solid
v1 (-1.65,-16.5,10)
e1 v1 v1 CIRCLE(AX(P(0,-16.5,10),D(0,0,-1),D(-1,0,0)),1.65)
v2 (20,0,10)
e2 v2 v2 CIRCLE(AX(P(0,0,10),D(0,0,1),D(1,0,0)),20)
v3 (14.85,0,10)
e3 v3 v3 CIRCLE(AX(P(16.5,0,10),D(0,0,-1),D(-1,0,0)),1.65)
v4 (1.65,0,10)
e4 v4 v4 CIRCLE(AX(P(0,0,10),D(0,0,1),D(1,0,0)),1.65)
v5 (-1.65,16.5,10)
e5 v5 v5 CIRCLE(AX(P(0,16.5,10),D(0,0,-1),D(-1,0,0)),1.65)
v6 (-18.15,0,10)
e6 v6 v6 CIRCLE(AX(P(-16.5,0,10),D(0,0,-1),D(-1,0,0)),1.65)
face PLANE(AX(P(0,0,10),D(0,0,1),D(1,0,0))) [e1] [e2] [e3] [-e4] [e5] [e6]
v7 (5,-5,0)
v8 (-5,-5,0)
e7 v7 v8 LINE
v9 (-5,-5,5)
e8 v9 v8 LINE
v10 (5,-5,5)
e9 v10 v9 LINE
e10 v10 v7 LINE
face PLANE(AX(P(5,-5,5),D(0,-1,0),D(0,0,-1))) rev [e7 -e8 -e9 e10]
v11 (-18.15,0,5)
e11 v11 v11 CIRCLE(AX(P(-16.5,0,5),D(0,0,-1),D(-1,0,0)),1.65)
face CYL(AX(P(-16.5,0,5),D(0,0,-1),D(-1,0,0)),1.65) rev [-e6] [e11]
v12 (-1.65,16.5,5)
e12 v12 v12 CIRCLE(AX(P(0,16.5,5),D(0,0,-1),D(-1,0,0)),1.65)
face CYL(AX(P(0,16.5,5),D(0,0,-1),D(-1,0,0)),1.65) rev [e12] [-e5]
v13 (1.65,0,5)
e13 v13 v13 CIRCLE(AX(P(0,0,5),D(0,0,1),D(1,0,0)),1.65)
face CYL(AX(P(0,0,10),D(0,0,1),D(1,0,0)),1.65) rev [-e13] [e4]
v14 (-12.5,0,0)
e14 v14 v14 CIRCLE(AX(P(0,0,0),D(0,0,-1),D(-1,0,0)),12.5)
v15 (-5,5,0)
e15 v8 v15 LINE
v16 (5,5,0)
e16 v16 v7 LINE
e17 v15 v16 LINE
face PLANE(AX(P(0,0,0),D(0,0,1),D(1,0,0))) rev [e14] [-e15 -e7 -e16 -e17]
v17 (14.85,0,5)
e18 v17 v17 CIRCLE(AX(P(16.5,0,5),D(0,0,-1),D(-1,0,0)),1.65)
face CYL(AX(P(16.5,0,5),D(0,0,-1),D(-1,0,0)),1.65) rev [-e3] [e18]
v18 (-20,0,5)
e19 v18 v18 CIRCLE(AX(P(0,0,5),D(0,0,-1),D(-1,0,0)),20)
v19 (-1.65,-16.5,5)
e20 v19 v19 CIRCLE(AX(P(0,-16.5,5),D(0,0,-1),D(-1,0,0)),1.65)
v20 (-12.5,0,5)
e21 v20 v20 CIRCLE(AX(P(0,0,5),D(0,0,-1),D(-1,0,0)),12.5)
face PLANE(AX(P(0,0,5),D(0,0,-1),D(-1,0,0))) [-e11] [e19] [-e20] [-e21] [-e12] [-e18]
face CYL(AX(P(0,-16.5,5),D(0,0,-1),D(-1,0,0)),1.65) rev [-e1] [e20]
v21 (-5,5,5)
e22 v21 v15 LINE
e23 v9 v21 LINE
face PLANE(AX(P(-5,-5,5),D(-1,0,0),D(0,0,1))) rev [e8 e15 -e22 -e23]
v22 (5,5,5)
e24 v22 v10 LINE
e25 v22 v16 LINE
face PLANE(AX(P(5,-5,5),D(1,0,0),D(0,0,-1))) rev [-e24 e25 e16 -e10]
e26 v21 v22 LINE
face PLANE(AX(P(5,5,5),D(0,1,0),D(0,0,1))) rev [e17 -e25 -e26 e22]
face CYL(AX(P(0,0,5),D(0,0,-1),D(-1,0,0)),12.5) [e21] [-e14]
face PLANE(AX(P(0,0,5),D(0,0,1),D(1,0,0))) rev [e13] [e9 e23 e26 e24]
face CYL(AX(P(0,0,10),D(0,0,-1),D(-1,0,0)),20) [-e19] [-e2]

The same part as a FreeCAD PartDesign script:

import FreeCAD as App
import Part
import Sketcher
from FreeCAD import Vector

doc = App.newDocument("Part")
body = doc.addObject("PartDesign::Body", "Body")

# Sketch on XY plane
sketch1 = doc.addObject("Sketcher::SketchObject", "Sketch")
body.addObject(sketch1)
sketch1.AttachmentSupport = (doc.XY_Plane, [""])
sketch1.MapMode = "FlatFace"
sketch1.addGeometry(Part.Circle(Vector(0, 0, 0), Vector(0, 0, 1), 20), False)
sketch1.addConstraint([
    Sketcher.Constraint("Coincident", 0, 3, -1, 1),
    Sketcher.Constraint("Diameter", 0, 40.0),
])
pad1 = doc.addObject("PartDesign::Pad", "Pad")
body.addObject(pad1)
pad1.Profile = sketch1
pad1.Length = 10

# Sketch on XY plane
sketch2 = doc.addObject("Sketcher::SketchObject", "Sketch001")
body.addObject(sketch2)
sketch2.AttachmentSupport = (doc.XY_Plane, [""])
sketch2.MapMode = "FlatFace"
sketch2.addGeometry([
    Part.LineSegment(Vector(5, 5, 0), Vector(5, -5, 0)),
    Part.LineSegment(Vector(5, -5, 0), Vector(-5, -5, 0)),
    Part.LineSegment(Vector(-5, -5, 0), Vector(-5, 5, 0)),
    Part.LineSegment(Vector(-5, 5, 0), Vector(5, 5, 0)),
], False)
sketch2.addConstraint([
    Sketcher.Constraint("Coincident", 0, 2, 1, 1),
    Sketcher.Constraint("Coincident", 1, 2, 2, 1),
    Sketcher.Constraint("Coincident", 2, 2, 3, 1),
    Sketcher.Constraint("Coincident", 3, 2, 0, 1),
    Sketcher.Constraint("Vertical", 0),
    Sketcher.Constraint("Horizontal", 1),
    Sketcher.Constraint("Vertical", 2),
    Sketcher.Constraint("Horizontal", 3),
    Sketcher.Constraint("Symmetric", 0, 2, 2, 2, -1, 1),
    Sketcher.Constraint("Equal", 3, 0),
    Sketcher.Constraint("DistanceX", 1, 2, 1, 1, 10.0),
])
pocket1 = doc.addObject("PartDesign::Pocket", "Pocket")
body.addObject(pocket1)
pocket1.Profile = sketch2
pocket1.Length = 5
pocket1.Reversed = True

# Sketch on XY plane
sketch3 = doc.addObject("Sketcher::SketchObject", "Sketch002")
body.addObject(sketch3)
sketch3.AttachmentSupport = (doc.XY_Plane, [""])
sketch3.MapMode = "FlatFace"
sketch3.AttachmentOffset = App.Placement(Vector(0, 0, 10), App.Rotation())
sketch3.addGeometry(Part.Circle(Vector(0, 0, 0), Vector(0, 0, 1), 1.6), False)
sketch3.addConstraint([
    Sketcher.Constraint("Coincident", 0, 3, -1, 1),
    Sketcher.Constraint("Diameter", 0, 3.3),
])
doc.recompute()
hole = doc.addObject("PartDesign::Hole", "Hole")
body.addObject(hole)
hole.Profile = sketch3
hole.ThreadType = "None"
hole.Diameter = 3.3
hole.DepthType = "ThroughAll"

# Sketch on XY plane
sketch4 = doc.addObject("Sketcher::SketchObject", "Sketch003")
body.addObject(sketch4)
sketch4.AttachmentSupport = (doc.XY_Plane, [""])
sketch4.MapMode = "FlatFace"
sketch4.addGeometry([
    Part.Circle(Vector(0, 0, 0), Vector(0, 0, 1), 20),
    Part.Circle(Vector(0, 0, 0), Vector(0, 0, 1), 12),
], False)
sketch4.addConstraint([
    Sketcher.Constraint("Coincident", 0, 3, -1, 1),
    Sketcher.Constraint("Coincident", 1, 3, -1, 1),
    Sketcher.Constraint("Diameter", 0, 40.0),
    Sketcher.Constraint("Diameter", 1, 25.0),
])
pocket2 = doc.addObject("PartDesign::Pocket", "Pocket001")
body.addObject(pocket2)
pocket2.Profile = sketch4
pocket2.Length = 5
pocket2.Reversed = True

# Sketch on XY plane
sketch5 = doc.addObject("Sketcher::SketchObject", "Sketch004")
body.addObject(sketch5)
sketch5.AttachmentSupport = (doc.XY_Plane, [""])
sketch5.MapMode = "FlatFace"
sketch5.AttachmentOffset = App.Placement(Vector(0, 0, 5), App.Rotation())
sketch5.addGeometry([
    Part.Circle(Vector(0, 16.5, 0), Vector(0, 0, 1), 1.6),  # 0
    Part.Circle(Vector(-16.5, 0, 0), Vector(0, 0, 1), 1.6),  # 1
    Part.Circle(Vector(0, -16.5, 0), Vector(0, 0, 1), 1.6),  # 2
    Part.Circle(Vector(0, 0, 0), Vector(0, 0, 1), 1.6),  # 3
    Part.Circle(Vector(16.5, 0, 0), Vector(0, 0, 1), 1.6),  # 4
], False)
sketch5.addConstraint([
    Sketcher.Constraint("Coincident", 3, 3, -1, 1),
    Sketcher.Constraint("Equal", 0, 1),
    Sketcher.Constraint("Equal", 1, 2),
    Sketcher.Constraint("Equal", 2, 3),
    Sketcher.Constraint("Equal", 3, 4),
    Sketcher.Constraint("Symmetric", 0, 3, 2, 3, -1, 1),
    Sketcher.Constraint("Symmetric", 1, 3, 4, 3, -1, 1),
    Sketcher.Constraint("PointOnObject", 0, 3, -2),
    Sketcher.Constraint("PointOnObject", 1, 3, -1),
    Sketcher.Constraint("Diameter", 0, 3.3),
    Sketcher.Constraint("DistanceY", 2, 3, 0, 3, 33.0),
    Sketcher.Constraint("DistanceX", 1, 3, 4, 3, 33.0),
])
doc.recompute()
hole2 = doc.addObject("PartDesign::Hole", "Hole001")
body.addObject(hole2)
hole2.Profile = sketch5
hole2.ThreadType = "None"
hole2.Diameter = 3.3
hole2.DepthType = "ThroughAll"
hole2.Reversed = True

doc.recompute()
